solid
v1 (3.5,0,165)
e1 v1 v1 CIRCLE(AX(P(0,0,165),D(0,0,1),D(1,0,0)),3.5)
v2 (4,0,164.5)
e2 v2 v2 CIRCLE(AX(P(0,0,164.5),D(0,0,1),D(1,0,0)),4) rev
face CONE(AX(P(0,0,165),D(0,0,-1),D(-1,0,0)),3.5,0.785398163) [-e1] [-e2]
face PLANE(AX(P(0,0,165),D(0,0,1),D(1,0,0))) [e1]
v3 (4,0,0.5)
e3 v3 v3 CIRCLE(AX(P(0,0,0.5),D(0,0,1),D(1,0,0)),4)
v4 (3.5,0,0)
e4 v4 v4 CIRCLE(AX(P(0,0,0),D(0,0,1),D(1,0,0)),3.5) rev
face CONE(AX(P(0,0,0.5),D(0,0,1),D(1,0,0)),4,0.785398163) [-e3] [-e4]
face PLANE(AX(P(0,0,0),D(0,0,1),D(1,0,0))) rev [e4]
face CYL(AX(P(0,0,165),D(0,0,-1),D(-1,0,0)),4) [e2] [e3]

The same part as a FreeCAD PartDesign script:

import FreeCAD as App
import Part
import Sketcher

V = App.Vector
Q = App.Units.Quantity


def edges_at(feature, points):
    """Names of the edges that pass closest to the given points."""
    edges = feature.Shape.Edges
    near = lambda p: min(range(len(edges)), key=lambda i: edges[i].distToShape(Part.Vertex(*p))[0])
    return sorted({f"Edge{near(p) + 1}" for p in points})

doc = App.newDocument("Part")
body = doc.addObject("PartDesign::Body", "Body")

# Sketch on XY plane
sketch1 = body.newObject("Sketcher::SketchObject", "Sketch")
sketch1.AttachmentSupport = (doc.getObject("XY_Plane"), [""])
sketch1.MapMode = "FlatFace"
sketch1.addGeometry(Part.Circle(V(0, 0, 0), V(0, 0, 1), 4), False)
sketch1.addConstraint(Sketcher.Constraint("Coincident", 0, 3, -1, 1))
sketch1.addConstraint(Sketcher.Constraint("Diameter", 0, Q("8 mm")))
pad1 = body.newObject("PartDesign::Pad", "Pad")
pad1.Profile = sketch1
pad1.Length = 165
doc.recompute()

chamfer = body.newObject("PartDesign::Chamfer", "Chamfer")
chamfer.Base = (pad1, edges_at(pad1, [(-4, 0, 0), (-4, 0, 165)]))
chamfer.Size = 0.5

doc.recompute()
